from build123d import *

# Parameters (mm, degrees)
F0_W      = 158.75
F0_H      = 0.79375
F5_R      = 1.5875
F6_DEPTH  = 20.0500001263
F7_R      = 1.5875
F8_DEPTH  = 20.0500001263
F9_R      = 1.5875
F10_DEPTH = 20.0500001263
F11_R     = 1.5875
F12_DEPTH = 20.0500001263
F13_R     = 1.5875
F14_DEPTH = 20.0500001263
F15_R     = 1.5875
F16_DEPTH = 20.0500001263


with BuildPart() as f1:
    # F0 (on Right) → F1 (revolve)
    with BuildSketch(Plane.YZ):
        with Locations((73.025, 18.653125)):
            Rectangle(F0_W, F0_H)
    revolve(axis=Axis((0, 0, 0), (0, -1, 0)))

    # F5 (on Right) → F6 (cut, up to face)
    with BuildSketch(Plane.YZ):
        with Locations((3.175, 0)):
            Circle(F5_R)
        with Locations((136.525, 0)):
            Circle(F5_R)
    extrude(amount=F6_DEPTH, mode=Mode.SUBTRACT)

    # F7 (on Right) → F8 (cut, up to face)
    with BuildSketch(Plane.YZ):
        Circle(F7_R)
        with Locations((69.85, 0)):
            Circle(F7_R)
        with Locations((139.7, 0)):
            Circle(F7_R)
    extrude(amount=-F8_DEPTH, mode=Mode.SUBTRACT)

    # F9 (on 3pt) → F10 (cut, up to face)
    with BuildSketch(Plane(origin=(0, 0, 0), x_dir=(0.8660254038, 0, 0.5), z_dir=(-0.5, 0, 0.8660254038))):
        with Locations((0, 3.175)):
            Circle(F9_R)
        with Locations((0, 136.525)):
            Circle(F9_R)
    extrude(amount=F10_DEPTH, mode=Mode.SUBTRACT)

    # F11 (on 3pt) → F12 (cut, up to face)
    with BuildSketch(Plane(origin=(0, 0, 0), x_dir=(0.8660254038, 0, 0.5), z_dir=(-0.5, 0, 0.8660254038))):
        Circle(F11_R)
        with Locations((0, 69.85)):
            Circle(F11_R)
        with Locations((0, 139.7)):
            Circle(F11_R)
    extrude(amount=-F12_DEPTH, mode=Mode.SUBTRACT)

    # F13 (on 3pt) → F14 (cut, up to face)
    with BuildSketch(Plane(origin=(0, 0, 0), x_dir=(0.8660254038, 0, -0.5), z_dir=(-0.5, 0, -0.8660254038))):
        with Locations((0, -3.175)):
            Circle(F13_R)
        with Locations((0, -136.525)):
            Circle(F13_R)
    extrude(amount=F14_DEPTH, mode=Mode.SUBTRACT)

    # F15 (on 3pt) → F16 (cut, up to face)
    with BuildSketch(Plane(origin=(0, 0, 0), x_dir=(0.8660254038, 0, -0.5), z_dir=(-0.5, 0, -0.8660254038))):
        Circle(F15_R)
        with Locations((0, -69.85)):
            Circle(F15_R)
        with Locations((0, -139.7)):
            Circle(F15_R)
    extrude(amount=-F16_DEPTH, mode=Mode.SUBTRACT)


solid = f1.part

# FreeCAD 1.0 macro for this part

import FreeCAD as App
import Part
import Sketcher
from FreeCAD import Vector
Q = App.Units.Quantity

doc = App.newDocument("Part")
body = doc.addObject("PartDesign::Body", "Body")

sketch1 = body.newObject("Sketcher::SketchObject", "Sketch")
sketch1.AttachmentSupport = (doc.getObject("YZ_Plane"), [""])
sketch1.MapMode = "FlatFace"
sketch1.addGeometry([
    Part.LineSegment(Vector(-6.3, 19.1, 0), Vector(-6.3, 18.3, 0)),
    Part.LineSegment(Vector(-6.3, 18.3, 0), Vector(152.4, 18.3, 0)),
    Part.LineSegment(Vector(152.4, 18.3, 0), Vector(152.4, 19.1, 0)),
    Part.LineSegment(Vector(152.4, 19.1, 0), Vector(-6.3, 19.1, 0)),
], False)
sketch1.addConstraint([
    Sketcher.Constraint("Coincident", 0, 2, 1, 1),
    Sketcher.Constraint("Coincident", 1, 2, 2, 1),
    Sketcher.Constraint("Coincident", 2, 2, 3, 1),
    Sketcher.Constraint("Coincident", 3, 2, 0, 1),
    Sketcher.Constraint("Vertical", 0),
    Sketcher.Constraint("Horizontal", 1),
    Sketcher.Constraint("Vertical", 2),
    Sketcher.Constraint("Horizontal", 3),
    Sketcher.Constraint("DistanceX", -1, 1, 1, 2, Q("6 in")),
    Sketcher.Constraint("DistanceX", 1, 1, 1, 2, Q("6.25 in")),
    Sketcher.Constraint("DistanceY", 0, 2, 0, 1, Q("0.03125 in")),
    Sketcher.Constraint("DistanceY", -1, 1, 2, 2, Q("0.75 in")),
])
revolution = body.newObject("PartDesign::Revolution", "Revolution")
revolution.Profile = sketch1
revolution.ReferenceAxis = (sketch1, ["H_Axis"])
revolution.Angle = 360

sketch2 = body.newObject("Sketcher::SketchObject", "Sketch001")
sketch2.AttachmentSupport = (doc.getObject("YZ_Plane"), [""])
sketch2.MapMode = "FlatFace"
sketch2.addGeometry([
    Part.Circle(Vector(3.2, 0, 0), Vector(0, 0, 1), 1.6),
    Part.Circle(Vector(136.5, 0, 0), Vector(0, 0, 1), 1.6),
], False)
sketch2.addConstraint([
    Sketcher.Constraint("Equal", 0, 1),
    Sketcher.Constraint("PointOnObject", 0, 3, -1),
    Sketcher.Constraint("PointOnObject", 1, 3, -1),
    Sketcher.Constraint("Diameter", 0, Q("0.125 in")),
    Sketcher.Constraint("DistanceX", 0, 3, 1, 3, Q("5.25 in")),
    Sketcher.Constraint("DistanceX", -1, 1, 0, 3, Q("0.125 in")),
])
pocket1 = body.newObject("PartDesign::Pocket", "Pocket")
pocket1.Profile = sketch2
pocket1.Length = 20.05
pocket1.Reversed = True

sketch3 = body.newObject("Sketcher::SketchObject", "Sketch002")
sketch3.AttachmentSupport = (doc.getObject("YZ_Plane"), [""])
sketch3.MapMode = "FlatFace"
sketch3.addGeometry([
    Part.Circle(Vector(0, 0, 0), Vector(0, 0, 1), 1.6),
    Part.Circle(Vector(69.8, 0, 0), Vector(0, 0, 1), 1.6),
    Part.Circle(Vector(139.7, 0, 0), Vector(0, 0, 1), 1.6),
], False)
sketch3.addConstraint([
    Sketcher.Constraint("Coincident", 0, 3, -1, 1),
    Sketcher.Constraint("Equal", 0, 1),
    Sketcher.Constraint("Equal", 1, 2),
    Sketcher.Constraint("PointOnObject", 1, 3, -1),
    Sketcher.Constraint("PointOnObject", 2, 3, -1),
    Sketcher.Constraint("Diameter", 0, Q("0.125 in")),
    Sketcher.Constraint("DistanceX", -1, 1, 2, 3, Q("5.5 in")),
    Sketcher.Constraint("DistanceX", -1, 1, 1, 3, Q("2.75 in")),
])
pocket2 = body.newObject("PartDesign::Pocket", "Pocket001")
pocket2.Profile = sketch3
pocket2.Length = 20.05

sketch4 = body.newObject("Sketcher::SketchObject", "Sketch003")
sketch4.Placement = App.Placement(Vector(0, 0, 0), App.Rotation(Vector(0.866025404, 0, 0.5), Vector(0, 1, 0), Vector(-0.5, 0, 0.866025404), "ZXY"))
sketch4.addGeometry([
    Part.Circle(Vector(0, 3.2, 0), Vector(0, 0, 1), 1.6),
    Part.Circle(Vector(0, 136.5, 0), Vector(0, 0, 1), 1.6),
], False)
sketch4.addConstraint([
    Sketcher.Constraint("Equal", 0, 1),
    Sketcher.Constraint("PointOnObject", 0, 3, -2),
    Sketcher.Constraint("PointOnObject", 1, 3, -2),
    Sketcher.Constraint("Diameter", 0, Q("0.125 in")),
    Sketcher.Constraint("DistanceY", 0, 3, 1, 3, Q("5.25 in")),
    Sketcher.Constraint("DistanceY", -1, 1, 0, 3, Q("0.125 in")),
])
pocket3 = body.newObject("PartDesign::Pocket", "Pocket002")
pocket3.Profile = sketch4
pocket3.Length = 20.05
pocket3.Reversed = True

sketch5 = body.newObject("Sketcher::SketchObject", "Sketch004")
sketch5.Placement = App.Placement(Vector(0, 0, 0), App.Rotation(Vector(0.866025404, 0, 0.5), Vector(0, 1, 0), Vector(-0.5, 0, 0.866025404), "ZXY"))
sketch5.addGeometry([
    Part.Circle(Vector(0, 0, 0), Vector(0, 0, 1), 1.6),
    Part.Circle(Vector(0, 69.9, 0), Vector(0, 0, 1), 1.6),
    Part.Circle(Vector(0, 139.7, 0), Vector(0, 0, 1), 1.6),
], False)
sketch5.addConstraint([
    Sketcher.Constraint("Coincident", 0, 3, -1, 1),
    Sketcher.Constraint("Equal", 0, 1),
    Sketcher.Constraint("Equal", 1, 2),
    Sketcher.Constraint("PointOnObject", 1, 3, -2),
    Sketcher.Constraint("PointOnObject", 2, 3, -2),
    Sketcher.Constraint("Diameter", 0, Q("0.125 in")),
    Sketcher.Constraint("DistanceY", -1, 1, 2, 3, Q("5.5 in")),
    Sketcher.Constraint("DistanceY", -1, 1, 1, 3, Q("2.75 in")),
])
pocket4 = body.newObject("PartDesign::Pocket", "Pocket003")
pocket4.Profile = sketch5
pocket4.Length = 20.05

sketch6 = body.newObject("Sketcher::SketchObject", "Sketch005")
sketch6.Placement = App.Placement(Vector(0, 0, 0), App.Rotation(Vector(0.866025404, 0, -0.5), Vector(0, -1, 0), Vector(-0.5, 0, -0.866025404), "ZXY"))
sketch6.addGeometry([
    Part.Circle(Vector(0, -3.2, 0), Vector(0, 0, 1), 1.6),
    Part.Circle(Vector(0, -136.5, 0), Vector(0, 0, 1), 1.6),
], False)
sketch6.addConstraint([
    Sketcher.Constraint("Equal", 0, 1),
    Sketcher.Constraint("PointOnObject", 0, 3, -2),
    Sketcher.Constraint("PointOnObject", 1, 3, -2),
    Sketcher.Constraint("Diameter", 0, Q("0.125 in")),
    Sketcher.Constraint("DistanceY", 1, 3, 0, 3, Q("5.25 in")),
    Sketcher.Constraint("DistanceY", 0, 3, -1, 1, Q("0.125 in")),
])
pocket5 = body.newObject("PartDesign::Pocket", "Pocket004")
pocket5.Profile = sketch6
pocket5.Length = 20.05
pocket5.Reversed = True

sketch7 = body.newObject("Sketcher::SketchObject", "Sketch006")
sketch7.Placement = App.Placement(Vector(0, 0, 0), App.Rotation(Vector(0.866025404, 0, -0.5), Vector(0, -1, 0), Vector(-0.5, 0, -0.866025404), "ZXY"))
sketch7.addGeometry([
    Part.Circle(Vector(0, 0, 0), Vector(0, 0, 1), 1.6),
    Part.Circle(Vector(0, -69.9, 0), Vector(0, 0, 1), 1.6),
    Part.Circle(Vector(0, -139.7, 0), Vector(0, 0, 1), 1.6),
], False)
sketch7.addConstraint([
    Sketcher.Constraint("Coincident", 0, 3, -1, 1),
    Sketcher.Constraint("Equal", 0, 1),
    Sketcher.Constraint("Equal", 1, 2),
    Sketcher.Constraint("PointOnObject", 1, 3, -2),
    Sketcher.Constraint("PointOnObject", 2, 3, -2),
    Sketcher.Constraint("Diameter", 0, Q("0.125 in")),
    Sketcher.Constraint("DistanceY", 2, 3, -1, 1, Q("5.5 in")),
    Sketcher.Constraint("DistanceY", 1, 3, -1, 1, Q("2.75 in")),
])
pocket6 = body.newObject("PartDesign::Pocket", "Pocket005")
pocket6.Profile = sketch7
pocket6.Length = 20.05

doc.recompute()
